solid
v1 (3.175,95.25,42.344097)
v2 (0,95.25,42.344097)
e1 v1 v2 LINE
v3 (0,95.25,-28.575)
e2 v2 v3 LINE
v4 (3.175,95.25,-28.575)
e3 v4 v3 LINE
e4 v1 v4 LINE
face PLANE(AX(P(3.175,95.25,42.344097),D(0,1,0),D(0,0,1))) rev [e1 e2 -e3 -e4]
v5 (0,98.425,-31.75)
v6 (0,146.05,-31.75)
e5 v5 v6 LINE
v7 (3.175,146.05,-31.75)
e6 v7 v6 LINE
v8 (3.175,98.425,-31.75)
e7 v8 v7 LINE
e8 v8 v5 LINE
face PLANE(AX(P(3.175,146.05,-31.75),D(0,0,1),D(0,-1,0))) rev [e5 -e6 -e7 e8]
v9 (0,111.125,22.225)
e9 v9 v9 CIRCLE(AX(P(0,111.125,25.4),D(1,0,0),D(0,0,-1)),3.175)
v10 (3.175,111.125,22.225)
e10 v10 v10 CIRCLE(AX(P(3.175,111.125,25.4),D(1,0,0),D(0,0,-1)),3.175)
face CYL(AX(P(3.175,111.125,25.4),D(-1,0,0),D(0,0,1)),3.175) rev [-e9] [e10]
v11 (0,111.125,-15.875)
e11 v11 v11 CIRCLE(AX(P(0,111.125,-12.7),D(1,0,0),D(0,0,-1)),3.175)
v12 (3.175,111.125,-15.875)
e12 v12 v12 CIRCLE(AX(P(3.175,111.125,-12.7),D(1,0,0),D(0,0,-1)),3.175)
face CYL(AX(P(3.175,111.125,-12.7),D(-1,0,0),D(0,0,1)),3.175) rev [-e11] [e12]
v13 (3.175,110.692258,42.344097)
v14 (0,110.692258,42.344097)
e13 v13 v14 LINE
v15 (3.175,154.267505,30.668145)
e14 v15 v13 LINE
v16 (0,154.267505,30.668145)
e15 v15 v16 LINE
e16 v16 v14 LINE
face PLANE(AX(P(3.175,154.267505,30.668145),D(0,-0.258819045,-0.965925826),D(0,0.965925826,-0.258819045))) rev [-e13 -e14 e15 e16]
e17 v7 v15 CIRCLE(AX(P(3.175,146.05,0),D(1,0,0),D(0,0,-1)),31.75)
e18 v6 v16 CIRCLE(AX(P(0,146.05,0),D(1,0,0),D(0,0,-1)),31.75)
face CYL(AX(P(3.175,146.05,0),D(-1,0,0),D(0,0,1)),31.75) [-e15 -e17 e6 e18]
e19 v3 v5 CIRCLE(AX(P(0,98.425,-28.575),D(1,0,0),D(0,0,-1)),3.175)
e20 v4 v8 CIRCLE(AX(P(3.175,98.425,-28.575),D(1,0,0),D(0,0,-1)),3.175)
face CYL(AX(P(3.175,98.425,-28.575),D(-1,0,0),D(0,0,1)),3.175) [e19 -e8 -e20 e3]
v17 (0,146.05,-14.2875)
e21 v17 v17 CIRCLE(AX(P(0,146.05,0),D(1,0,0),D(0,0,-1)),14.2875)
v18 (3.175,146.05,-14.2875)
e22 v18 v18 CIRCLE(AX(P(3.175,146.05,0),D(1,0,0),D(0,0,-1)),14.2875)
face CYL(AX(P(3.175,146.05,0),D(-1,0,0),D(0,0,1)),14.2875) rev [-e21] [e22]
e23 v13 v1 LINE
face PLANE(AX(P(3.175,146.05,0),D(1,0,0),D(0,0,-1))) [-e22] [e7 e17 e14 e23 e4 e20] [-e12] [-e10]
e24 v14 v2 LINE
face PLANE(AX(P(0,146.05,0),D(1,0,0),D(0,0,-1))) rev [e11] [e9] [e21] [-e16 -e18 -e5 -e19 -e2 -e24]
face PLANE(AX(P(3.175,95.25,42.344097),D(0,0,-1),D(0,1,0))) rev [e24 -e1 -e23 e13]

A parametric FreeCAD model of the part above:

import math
import FreeCAD as App
import Part
import Sketcher
from FreeCAD import Vector
Q = App.Units.Quantity

doc = App.newDocument("Part")
body = doc.addObject("PartDesign::Body", "Body")

# Sketch on YZ plane
sketch1 = body.newObject("Sketcher::SketchObject", "Sketch")
sketch1.AttachmentSupport = (doc.getObject("YZ_Plane"), [""])
sketch1.MapMode = "FlatFace"
sketch1.addGeometry(Part.LineSegment(Vector(154.3, 30.7, 0), Vector(110.7, 42.3, 0)), False)
sketch1.addGeometry(Part.LineSegment(Vector(110.7, 42.3, 0), Vector(95.2, 42.3, 0)), False)
sketch1.addGeometry(Part.LineSegment(Vector(95.2, 42.3, 0), Vector(95.2, -28.6, 0)), False)
sketch1.addGeometry(Part.ArcOfCircle(Part.Circle(Vector(98.4, -28.6, 0), Vector(0, 0, 1), 3.2), math.radians(-180), math.radians(-90)), False)
sketch1.addGeometry(Part.LineSegment(Vector(98.4, -31.8, 0), Vector(146.1, -31.8, 0)), False)
sketch1.addGeometry(Part.ArcOfCircle(Part.Circle(Vector(146.1, 0, 0), Vector(0, 0, 1), 31.8), math.radians(-90), math.radians(75)), False)
sketch1.addGeometry(Part.Circle(Vector(111.1, 25.4, 0), Vector(0, 0, 1), 3.2), False)
sketch1.addGeometry(Part.Circle(Vector(111.1, -12.7, 0), Vector(0, 0, 1), 3.2), False)
sketch1.addGeometry(Part.Circle(Vector(146.1, 0, 0), Vector(0, 0, 1), 14.3), False)
sketch1.addConstraint(Sketcher.Constraint("Coincident", 0, 2, 1, 1))
sketch1.addConstraint(Sketcher.Constraint("Coincident", 1, 2, 2, 1))
sketch1.addConstraint(Sketcher.Constraint("Tangent", 2, 2, 3, 1))
sketch1.addConstraint(Sketcher.Constraint("Tangent", 3, 2, 4, 1))
sketch1.addConstraint(Sketcher.Constraint("Tangent", 4, 2, 5, 1))
sketch1.addConstraint(Sketcher.Constraint("Tangent", 5, 2, 0, 1))
sketch1.addConstraint(Sketcher.Constraint("Horizontal", 1))
sketch1.addConstraint(Sketcher.Constraint("Vertical", 2))
sketch1.addConstraint(Sketcher.Constraint("Horizontal", 4))
sketch1.addConstraint(Sketcher.Constraint("Coincident", 8, 3, 5, 3))
sketch1.addConstraint(Sketcher.Constraint("Equal", 3, 6))
sketch1.addConstraint(Sketcher.Constraint("Equal", 6, 7))
sketch1.addConstraint(Sketcher.Constraint("PointOnObject", 5, 3, -1))
sketch1.addConstraint(Sketcher.Constraint("Vertical", 6, 3, 7, 3))
sketch1.addConstraint(Sketcher.Constraint("Diameter", 6, Q("0.25 in")))
sketch1.addConstraint(Sketcher.Constraint("Radius", 5, Q("1.25 in")))
sketch1.addConstraint(Sketcher.Constraint("Diameter", 8, Q("1.125 in")))
sketch1.addConstraint(Sketcher.Constraint("DistanceY", -1, 1, 6, 3, Q("1 in")))
sketch1.addConstraint(Sketcher.Constraint("Angle", 0, Q("165 deg")))
sketch1.addConstraint(Sketcher.Constraint("DistanceX", 1, 2, 5, 3, Q("2 in")))
sketch1.addConstraint(Sketcher.Constraint("DistanceY", 7, 3, -1, 1, Q("0.5 in")))
sketch1.addConstraint(Sketcher.Constraint("DistanceX", 3, 3, 6, 3, Q("0.5 in")))
sketch1.addConstraint(Sketcher.Constraint("DistanceX", -1, 1, 5, 3, Q("5.75 in")))
sketch1.addConstraint(Sketcher.Constraint("DistanceX", 1, 2, 1, 1, Q("15.442258 mm")))
pad1 = body.newObject("PartDesign::Pad", "Pad")
pad1.Profile = sketch1
pad1.Length = Q("0.125 in")

doc.recompute()
